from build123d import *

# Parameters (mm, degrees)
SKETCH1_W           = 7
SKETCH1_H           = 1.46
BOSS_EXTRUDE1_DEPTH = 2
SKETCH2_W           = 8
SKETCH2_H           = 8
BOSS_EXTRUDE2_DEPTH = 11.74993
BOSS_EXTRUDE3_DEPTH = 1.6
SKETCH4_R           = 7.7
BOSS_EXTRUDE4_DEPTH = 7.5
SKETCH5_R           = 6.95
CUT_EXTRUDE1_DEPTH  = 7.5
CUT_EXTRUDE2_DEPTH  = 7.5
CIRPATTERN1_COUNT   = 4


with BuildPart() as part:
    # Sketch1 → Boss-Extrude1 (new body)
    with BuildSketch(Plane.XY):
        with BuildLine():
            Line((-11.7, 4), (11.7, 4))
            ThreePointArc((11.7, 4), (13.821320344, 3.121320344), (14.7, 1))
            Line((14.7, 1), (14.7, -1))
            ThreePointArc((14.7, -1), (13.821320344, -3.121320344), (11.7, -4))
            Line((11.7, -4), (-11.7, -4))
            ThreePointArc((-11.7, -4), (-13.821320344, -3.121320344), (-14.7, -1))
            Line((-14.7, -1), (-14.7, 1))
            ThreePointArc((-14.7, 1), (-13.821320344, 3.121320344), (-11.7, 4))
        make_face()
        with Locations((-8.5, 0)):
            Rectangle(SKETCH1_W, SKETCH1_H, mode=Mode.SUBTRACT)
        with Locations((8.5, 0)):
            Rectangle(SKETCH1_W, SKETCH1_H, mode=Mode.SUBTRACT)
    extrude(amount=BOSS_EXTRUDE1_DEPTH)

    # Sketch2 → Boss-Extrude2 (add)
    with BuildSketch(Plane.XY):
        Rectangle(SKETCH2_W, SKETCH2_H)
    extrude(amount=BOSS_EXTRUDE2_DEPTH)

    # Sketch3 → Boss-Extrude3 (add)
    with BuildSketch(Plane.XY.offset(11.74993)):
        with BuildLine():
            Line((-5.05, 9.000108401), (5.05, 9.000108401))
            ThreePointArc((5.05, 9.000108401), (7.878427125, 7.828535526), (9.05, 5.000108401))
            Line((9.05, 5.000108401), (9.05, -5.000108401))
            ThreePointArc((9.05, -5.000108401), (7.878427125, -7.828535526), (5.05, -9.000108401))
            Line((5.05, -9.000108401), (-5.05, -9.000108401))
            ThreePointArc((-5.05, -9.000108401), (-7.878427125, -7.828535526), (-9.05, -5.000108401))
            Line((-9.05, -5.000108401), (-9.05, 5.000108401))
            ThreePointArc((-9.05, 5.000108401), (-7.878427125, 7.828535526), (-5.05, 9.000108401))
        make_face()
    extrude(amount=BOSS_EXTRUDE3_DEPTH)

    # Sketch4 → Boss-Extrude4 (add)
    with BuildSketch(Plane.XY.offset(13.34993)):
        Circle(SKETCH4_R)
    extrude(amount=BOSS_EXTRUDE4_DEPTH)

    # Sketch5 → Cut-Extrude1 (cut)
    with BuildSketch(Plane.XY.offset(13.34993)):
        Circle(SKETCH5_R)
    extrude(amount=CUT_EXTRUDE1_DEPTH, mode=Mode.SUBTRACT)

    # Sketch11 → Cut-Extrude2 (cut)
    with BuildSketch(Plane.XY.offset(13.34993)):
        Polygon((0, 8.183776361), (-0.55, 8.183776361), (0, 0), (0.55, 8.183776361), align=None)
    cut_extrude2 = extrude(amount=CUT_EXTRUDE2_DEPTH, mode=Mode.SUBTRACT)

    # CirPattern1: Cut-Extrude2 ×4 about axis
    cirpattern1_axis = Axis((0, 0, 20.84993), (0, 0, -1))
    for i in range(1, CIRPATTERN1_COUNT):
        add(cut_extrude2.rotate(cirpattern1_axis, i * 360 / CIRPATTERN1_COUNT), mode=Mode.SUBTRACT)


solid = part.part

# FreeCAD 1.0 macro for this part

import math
import FreeCAD as App
import Part
import Sketcher

V = App.Vector


def add_polygon(sketch, points):
    """Adds a closed chain of lines whose ends are joined by coincident constraints."""
    first, n = sketch.GeometryCount, len(points)
    for a, b in zip(points, points[1:] + points[:1]):
        sketch.addGeometry(Part.LineSegment(App.Vector(*a, 0), App.Vector(*b, 0)), False)
    for i in range(n):
        sketch.addConstraint(Sketcher.Constraint("Coincident", first + i, 2, first + (i + 1) % n, 1))

doc = App.newDocument("Part")
body = doc.addObject("PartDesign::Body", "Body")

sketch1 = body.newObject("Sketcher::SketchObject", "Sketch")
sketch1.AttachmentSupport = (doc.getObject("XY_Plane"), [""])
sketch1.MapMode = "FlatFace"
sketch1.addGeometry(Part.LineSegment(V(11.7, 4, 0), V(-11.7, 4, 0)), False)
sketch1.addGeometry(Part.ArcOfCircle(Part.Circle(V(-11.7, 1, 0), V(0, 0, 1), 3), math.radians(90), math.radians(180)), False)
sketch1.addGeometry(Part.LineSegment(V(-14.7, 1, 0), V(-14.7, -1, 0)), False)
sketch1.addGeometry(Part.ArcOfCircle(Part.Circle(V(-11.7, -1, 0), V(0, 0, 1), 3), math.radians(180), math.radians(270)), False)
sketch1.addGeometry(Part.LineSegment(V(-11.7, -4, 0), V(11.7, -4, 0)), False)
sketch1.addGeometry(Part.ArcOfCircle(Part.Circle(V(11.7, -1, 0), V(0, 0, 1), 3), math.radians(-90), math.radians(0)), False)
sketch1.addGeometry(Part.LineSegment(V(14.7, -1, 0), V(14.7, 1, 0)), False)
sketch1.addGeometry(Part.ArcOfCircle(Part.Circle(V(11.7, 1, 0), V(0, 0, 1), 3), math.radians(0), math.radians(90)), False)
add_polygon(sketch1, [(5, -0.7), (5, 0.7), (12, 0.7), (12, -0.7)])
add_polygon(sketch1, [(-12, -0.7), (-12, 0.7), (-5, 0.7), (-5, -0.7)])
sketch1.addConstraint(Sketcher.Constraint("Tangent", 0, 2, 1, 1))
sketch1.addConstraint(Sketcher.Constraint("Tangent", 1, 2, 2, 1))
sketch1.addConstraint(Sketcher.Constraint("Tangent", 2, 2, 3, 1))
sketch1.addConstraint(Sketcher.Constraint("Tangent", 3, 2, 4, 1))
sketch1.addConstraint(Sketcher.Constraint("Tangent", 4, 2, 5, 1))
sketch1.addConstraint(Sketcher.Constraint("Tangent", 5, 2, 6, 1))
sketch1.addConstraint(Sketcher.Constraint("Tangent", 6, 2, 7, 1))
sketch1.addConstraint(Sketcher.Constraint("Tangent", 7, 2, 0, 1))
sketch1.addConstraint(Sketcher.Constraint("Horizontal", 0))
sketch1.addConstraint(Sketcher.Constraint("Vertical", 2))
sketch1.addConstraint(Sketcher.Constraint("Horizontal", 4))
sketch1.addConstraint(Sketcher.Constraint("Vertical", 6))
sketch1.addConstraint(Sketcher.Constraint("Vertical", 8))
sketch1.addConstraint(Sketcher.Constraint("Horizontal", 9))
sketch1.addConstraint(Sketcher.Constraint("Vertical", 10))
sketch1.addConstraint(Sketcher.Constraint("Horizontal", 11))
sketch1.addConstraint(Sketcher.Constraint("Vertical", 12))
sketch1.addConstraint(Sketcher.Constraint("Horizontal", 13))
sketch1.addConstraint(Sketcher.Constraint("Vertical", 14))
sketch1.addConstraint(Sketcher.Constraint("Horizontal", 15))
sketch1.addConstraint(Sketcher.Constraint("Equal", 1, 3))
sketch1.addConstraint(Sketcher.Constraint("Equal", 3, 5))
sketch1.addConstraint(Sketcher.Constraint("Equal", 5, 7))
sketch1.addConstraint(Sketcher.Constraint("Symmetric", 1, 3, 5, 3, -1, 1))
sketch1.addConstraint(Sketcher.Constraint("Symmetric", 10, 2, 12, 2, -1, 1))
sketch1.addConstraint(Sketcher.Constraint("Symmetric", 8, 2, 14, 2, -1, 1))
sketch1.addConstraint(Sketcher.Constraint("Horizontal", 9, 2, 12, 2))
sketch1.addConstraint(Sketcher.Constraint("Radius", 1, 3.0))
sketch1.addConstraint(Sketcher.Constraint("DistanceX", 9, 1, 9, 2, 7.0))
sketch1.addConstraint(Sketcher.Constraint("DistanceY", 2, 2, 2, 1, 2.0))
sketch1.addConstraint(Sketcher.Constraint("DistanceX", 0, 2, 0, 1, 23.4))
sketch1.addConstraint(Sketcher.Constraint("DistanceX", -1, 1, 8, 2, 5.0))
sketch1.addConstraint(Sketcher.Constraint("DistanceY", 8, 1, 8, 2, 1.46))
pad1 = body.newObject("PartDesign::Pad", "Pad")
pad1.Profile = sketch1
pad1.Length = 2

sketch2 = body.newObject("Sketcher::SketchObject", "Sketch001")
sketch2.AttachmentSupport = (doc.getObject("XY_Plane"), [""])
sketch2.MapMode = "FlatFace"
add_polygon(sketch2, [(-4, 4), (-4, -4), (4, -4), (4, 4)])
sketch2.addConstraint(Sketcher.Constraint("Vertical", 0))
sketch2.addConstraint(Sketcher.Constraint("Horizontal", 1))
sketch2.addConstraint(Sketcher.Constraint("Vertical", 2))
sketch2.addConstraint(Sketcher.Constraint("Horizontal", 3))
sketch2.addConstraint(Sketcher.Constraint("Symmetric", 0, 2, 2, 2, -1, 1))
sketch2.addConstraint(Sketcher.Constraint("Equal", 3, 0))
sketch2.addConstraint(Sketcher.Constraint("DistanceX", 1, 1, 1, 2, 8.0))
pad2 = body.newObject("PartDesign::Pad", "Pad001")
pad2.Profile = sketch2
pad2.Length = 11.74993

sketch3 = body.newObject("Sketcher::SketchObject", "Sketch002")
sketch3.AttachmentSupport = (doc.getObject("XY_Plane"), [""])
sketch3.MapMode = "FlatFace"
sketch3.AttachmentOffset = App.Placement(V(0, 0, 11.74993), App.Rotation())
sketch3.addGeometry(Part.LineSegment(V(5, 9, 0), V(-5, 9, 0)), False)
sketch3.addGeometry(Part.ArcOfCircle(Part.Circle(V(-5.1, 5, 0), V(0, 0, 1), 4), math.radians(90), math.radians(180)), False)
sketch3.addGeometry(Part.LineSegment(V(-9.1, 5, 0), V(-9.1, -5, 0)), False)
sketch3.addGeometry(Part.ArcOfCircle(Part.Circle(V(-5.1, -5, 0), V(0, 0, 1), 4), math.radians(180), math.radians(270)), False)
sketch3.addGeometry(Part.LineSegment(V(-5, -9, 0), V(5, -9, 0)), False)
sketch3.addGeometry(Part.ArcOfCircle(Part.Circle(V(5.1, -5, 0), V(0, 0, 1), 4), math.radians(-90), math.radians(0)), False)
sketch3.addGeometry(Part.LineSegment(V(9.1, -5, 0), V(9.1, 5, 0)), False)
sketch3.addGeometry(Part.ArcOfCircle(Part.Circle(V(5.1, 5, 0), V(0, 0, 1), 4), math.radians(0), math.radians(90)), False)
sketch3.addConstraint(Sketcher.Constraint("Tangent", 0, 2, 1, 1))
sketch3.addConstraint(Sketcher.Constraint("Tangent", 1, 2, 2, 1))
sketch3.addConstraint(Sketcher.Constraint("Tangent", 2, 2, 3, 1))
sketch3.addConstraint(Sketcher.Constraint("Tangent", 3, 2, 4, 1))
sketch3.addConstraint(Sketcher.Constraint("Tangent", 4, 2, 5, 1))
sketch3.addConstraint(Sketcher.Constraint("Tangent", 5, 2, 6, 1))
sketch3.addConstraint(Sketcher.Constraint("Tangent", 6, 2, 7, 1))
sketch3.addConstraint(Sketcher.Constraint("Tangent", 7, 2, 0, 1))
sketch3.addConstraint(Sketcher.Constraint("Horizontal", 0))
sketch3.addConstraint(Sketcher.Constraint("Vertical", 2))
sketch3.addConstraint(Sketcher.Constraint("Horizontal", 4))
sketch3.addConstraint(Sketcher.Constraint("Vertical", 6))
sketch3.addConstraint(Sketcher.Constraint("Equal", 1, 3))
sketch3.addConstraint(Sketcher.Constraint("Equal", 3, 5))
sketch3.addConstraint(Sketcher.Constraint("Equal", 5, 7))
sketch3.addConstraint(Sketcher.Constraint("Symmetric", 1, 3, 5, 3, -1, 1))
sketch3.addConstraint(Sketcher.Constraint("Radius", 1, 4.0))
sketch3.addConstraint(Sketcher.Constraint("DistanceX", 0, 2, 0, 1, 10.1))
sketch3.addConstraint(Sketcher.Constraint("DistanceY", 2, 2, 2, 1, 10.000217))
pad3 = body.newObject("PartDesign::Pad", "Pad002")
pad3.Profile = sketch3
pad3.Length = 1.6

sketch4 = body.newObject("Sketcher::SketchObject", "Sketch003")
sketch4.AttachmentSupport = (doc.getObject("XY_Plane"), [""])
sketch4.MapMode = "FlatFace"
sketch4.AttachmentOffset = App.Placement(V(0, 0, 13.34993), App.Rotation())
sketch4.addGeometry(Part.Circle(V(0, 0, 0), V(0, 0, 1), 8), False)
sketch4.addConstraint(Sketcher.Constraint("Coincident", 0, 3, -1, 1))
sketch4.addConstraint(Sketcher.Constraint("Diameter", 0, 15.4))
pad4 = body.newObject("PartDesign::Pad", "Pad003")
pad4.Profile = sketch4
pad4.Length = 7.5

sketch5 = body.newObject("Sketcher::SketchObject", "Sketch004")
sketch5.AttachmentSupport = (doc.getObject("XY_Plane"), [""])
sketch5.MapMode = "FlatFace"
sketch5.AttachmentOffset = App.Placement(V(0, 0, 13.34993), App.Rotation())
sketch5.addGeometry(Part.Circle(V(0, 0, 0), V(0, 0, 1), 7), False)
sketch5.addConstraint(Sketcher.Constraint("Coincident", 0, 3, -1, 1))
sketch5.addConstraint(Sketcher.Constraint("Diameter", 0, 13.9))
pocket1 = body.newObject("PartDesign::Pocket", "Pocket")
pocket1.Profile = sketch5
pocket1.Length = 7.5
pocket1.Reversed = True

sketch6 = body.newObject("Sketcher::SketchObject", "Sketch005")
sketch6.AttachmentSupport = (doc.getObject("XY_Plane"), [""])
sketch6.MapMode = "FlatFace"
sketch6.AttachmentOffset = App.Placement(V(0, 0, 13.34993), App.Rotation())
add_polygon(sketch6, [(-0.6, 8.2), (0, 0), (0.6, 8.2)])
sketch6.addConstraint(Sketcher.Constraint("Horizontal", 2))
sketch6.addConstraint(Sketcher.Constraint("Coincident", 0, 2, -1, 1))
sketch6.addConstraint(Sketcher.Constraint("Equal", 0, 1))
sketch6.addConstraint(Sketcher.Constraint("DistanceX", 2, 2, 2, 1, 1.1))
sketch6.addConstraint(Sketcher.Constraint("Distance", 0, 8.202237))
pocket2 = body.newObject("PartDesign::Pocket", "Pocket001")
pocket2.Profile = sketch6
pocket2.Length = 7.5
pocket2.Reversed = True
doc.recompute()

polarpattern = body.newObject("PartDesign::PolarPattern", "PolarPattern")
polarpattern.Originals = [pocket2]
polarpattern.Axis = (doc.getObject("Z_Axis"), [""])
polarpattern.Angle = 360
polarpattern.Occurrences = 4
body.Tip = polarpattern

doc.recompute()
